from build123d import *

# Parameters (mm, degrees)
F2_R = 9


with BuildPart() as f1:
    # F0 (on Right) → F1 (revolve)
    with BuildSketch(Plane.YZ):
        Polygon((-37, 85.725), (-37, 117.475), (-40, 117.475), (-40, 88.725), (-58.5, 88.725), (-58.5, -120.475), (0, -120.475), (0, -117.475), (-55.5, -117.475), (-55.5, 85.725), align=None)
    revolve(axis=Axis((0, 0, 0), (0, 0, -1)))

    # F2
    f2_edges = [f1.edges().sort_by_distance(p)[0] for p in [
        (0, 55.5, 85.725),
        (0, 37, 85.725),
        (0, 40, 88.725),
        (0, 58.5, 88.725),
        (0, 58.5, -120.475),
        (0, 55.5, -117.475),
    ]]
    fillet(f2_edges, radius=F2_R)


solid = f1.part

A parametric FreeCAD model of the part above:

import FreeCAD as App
import Part
import Sketcher

V = App.Vector
Q = App.Units.Quantity


def edges_at(feature, points):
    """Names of the edges that pass closest to the given points."""
    edges = feature.Shape.Edges
    near = lambda p: min(range(len(edges)), key=lambda i: edges[i].distToShape(Part.Vertex(*p))[0])
    return sorted({f"Edge{near(p) + 1}" for p in points})

doc = App.newDocument("Part")
body = doc.addObject("PartDesign::Body", "Body")

# Sketch on YZ plane
sketch1 = body.newObject("Sketcher::SketchObject", "Sketch")
sketch1.AttachmentSupport = (doc.getObject("YZ_Plane"), [""])
sketch1.MapMode = "FlatFace"
sketch1.addGeometry(Part.LineSegment(V(-37, 85.725, 0), V(-37, 117.475, 0)), False)
sketch1.addGeometry(Part.LineSegment(V(-37, 117.475, 0), V(-40, 117.475, 0)), False)
sketch1.addGeometry(Part.LineSegment(V(-40, 117.475, 0), V(-40, 88.725, 0)), False)
sketch1.addGeometry(Part.LineSegment(V(-40, 88.725, 0), V(-58.5, 88.725, 0)), False)
sketch1.addGeometry(Part.LineSegment(V(-58.5, 88.725, 0), V(-58.5, -120.475, 0)), False)
sketch1.addGeometry(Part.LineSegment(V(-58.5, -120.475, 0), V(0, -120.475, 0)), False)
sketch1.addGeometry(Part.LineSegment(V(0, -120.475, 0), V(0, -117.475, 0)), False)
sketch1.addGeometry(Part.LineSegment(V(0, -117.475, 0), V(-55.5, -117.475, 0)), False)
sketch1.addGeometry(Part.LineSegment(V(-55.5, -117.475, 0), V(-55.5, 85.725, 0)), False)
sketch1.addGeometry(Part.LineSegment(V(-55.5, 85.725, 0), V(-37, 85.725, 0)), False)
sketch1.addConstraint(Sketcher.Constraint("Coincident", 0, 2, 1, 1))
sketch1.addConstraint(Sketcher.Constraint("Coincident", 1, 2, 2, 1))
sketch1.addConstraint(Sketcher.Constraint("Coincident", 2, 2, 3, 1))
sketch1.addConstraint(Sketcher.Constraint("Coincident", 3, 2, 4, 1))
sketch1.addConstraint(Sketcher.Constraint("Coincident", 4, 2, 5, 1))
sketch1.addConstraint(Sketcher.Constraint("Coincident", 5, 2, 6, 1))
sketch1.addConstraint(Sketcher.Constraint("Coincident", 6, 2, 7, 1))
sketch1.addConstraint(Sketcher.Constraint("Coincident", 7, 2, 8, 1))
sketch1.addConstraint(Sketcher.Constraint("Coincident", 8, 2, 9, 1))
sketch1.addConstraint(Sketcher.Constraint("Coincident", 9, 2, 0, 1))
sketch1.addConstraint(Sketcher.Constraint("Vertical", 0))
sketch1.addConstraint(Sketcher.Constraint("Horizontal", 1))
sketch1.addConstraint(Sketcher.Constraint("Vertical", 2))
sketch1.addConstraint(Sketcher.Constraint("Horizontal", 3))
sketch1.addConstraint(Sketcher.Constraint("Vertical", 4))
sketch1.addConstraint(Sketcher.Constraint("Horizontal", 5))
sketch1.addConstraint(Sketcher.Constraint("Vertical", 6))
sketch1.addConstraint(Sketcher.Constraint("Horizontal", 7))
sketch1.addConstraint(Sketcher.Constraint("Vertical", 8))
sketch1.addConstraint(Sketcher.Constraint("Horizontal", 9))
sketch1.addConstraint(Sketcher.Constraint("PointOnObject", 5, 2, -2))
sketch1.addConstraint(Sketcher.Constraint("Equal", 3, 9))
sketch1.addConstraint(Sketcher.Constraint("Equal", 1, 6))
sketch1.addConstraint(Sketcher.Constraint("DistanceX", 1, 2, 1, 1, Q("3 mm")))
sketch1.addConstraint(Sketcher.Constraint("DistanceX", 3, 2, 3, 1, Q("18.5 mm")))
sketch1.addConstraint(Sketcher.Constraint("DistanceX", 5, 1, 5, 2, Q("58.5 mm")))
sketch1.addConstraint(Sketcher.Constraint("DistanceY", 4, 2, 4, 1, Q("209.2 mm")))
sketch1.addConstraint(Sketcher.Constraint("DistanceY", 8, 1, 8, 2, Q("203.2 mm")))
sketch1.addConstraint(Sketcher.Constraint("DistanceY", 0, 1, 0, 2, Q("31.75 mm")))
sketch1.addConstraint(Sketcher.Constraint("DistanceY", -1, 1, 0, 2, Q("117.475 mm")))
revolution = body.newObject("PartDesign::Revolution", "Revolution")
revolution.Profile = sketch1
revolution.ReferenceAxis = (sketch1, ["V_Axis"])
revolution.Angle = 360
doc.recompute()

fillet = body.newObject("PartDesign::Fillet", "Fillet")
fillet.Base = (revolution, edges_at(revolution, [
    (0, 55.5, 85.725),
    (0, 37, 85.725),
    (0, 40, 88.725),
    (0, 58.5, 88.725),
    (0, 58.5, -120.475),
    (0, 55.5, -117.475),
]))
fillet.Radius = 9

doc.recompute()
